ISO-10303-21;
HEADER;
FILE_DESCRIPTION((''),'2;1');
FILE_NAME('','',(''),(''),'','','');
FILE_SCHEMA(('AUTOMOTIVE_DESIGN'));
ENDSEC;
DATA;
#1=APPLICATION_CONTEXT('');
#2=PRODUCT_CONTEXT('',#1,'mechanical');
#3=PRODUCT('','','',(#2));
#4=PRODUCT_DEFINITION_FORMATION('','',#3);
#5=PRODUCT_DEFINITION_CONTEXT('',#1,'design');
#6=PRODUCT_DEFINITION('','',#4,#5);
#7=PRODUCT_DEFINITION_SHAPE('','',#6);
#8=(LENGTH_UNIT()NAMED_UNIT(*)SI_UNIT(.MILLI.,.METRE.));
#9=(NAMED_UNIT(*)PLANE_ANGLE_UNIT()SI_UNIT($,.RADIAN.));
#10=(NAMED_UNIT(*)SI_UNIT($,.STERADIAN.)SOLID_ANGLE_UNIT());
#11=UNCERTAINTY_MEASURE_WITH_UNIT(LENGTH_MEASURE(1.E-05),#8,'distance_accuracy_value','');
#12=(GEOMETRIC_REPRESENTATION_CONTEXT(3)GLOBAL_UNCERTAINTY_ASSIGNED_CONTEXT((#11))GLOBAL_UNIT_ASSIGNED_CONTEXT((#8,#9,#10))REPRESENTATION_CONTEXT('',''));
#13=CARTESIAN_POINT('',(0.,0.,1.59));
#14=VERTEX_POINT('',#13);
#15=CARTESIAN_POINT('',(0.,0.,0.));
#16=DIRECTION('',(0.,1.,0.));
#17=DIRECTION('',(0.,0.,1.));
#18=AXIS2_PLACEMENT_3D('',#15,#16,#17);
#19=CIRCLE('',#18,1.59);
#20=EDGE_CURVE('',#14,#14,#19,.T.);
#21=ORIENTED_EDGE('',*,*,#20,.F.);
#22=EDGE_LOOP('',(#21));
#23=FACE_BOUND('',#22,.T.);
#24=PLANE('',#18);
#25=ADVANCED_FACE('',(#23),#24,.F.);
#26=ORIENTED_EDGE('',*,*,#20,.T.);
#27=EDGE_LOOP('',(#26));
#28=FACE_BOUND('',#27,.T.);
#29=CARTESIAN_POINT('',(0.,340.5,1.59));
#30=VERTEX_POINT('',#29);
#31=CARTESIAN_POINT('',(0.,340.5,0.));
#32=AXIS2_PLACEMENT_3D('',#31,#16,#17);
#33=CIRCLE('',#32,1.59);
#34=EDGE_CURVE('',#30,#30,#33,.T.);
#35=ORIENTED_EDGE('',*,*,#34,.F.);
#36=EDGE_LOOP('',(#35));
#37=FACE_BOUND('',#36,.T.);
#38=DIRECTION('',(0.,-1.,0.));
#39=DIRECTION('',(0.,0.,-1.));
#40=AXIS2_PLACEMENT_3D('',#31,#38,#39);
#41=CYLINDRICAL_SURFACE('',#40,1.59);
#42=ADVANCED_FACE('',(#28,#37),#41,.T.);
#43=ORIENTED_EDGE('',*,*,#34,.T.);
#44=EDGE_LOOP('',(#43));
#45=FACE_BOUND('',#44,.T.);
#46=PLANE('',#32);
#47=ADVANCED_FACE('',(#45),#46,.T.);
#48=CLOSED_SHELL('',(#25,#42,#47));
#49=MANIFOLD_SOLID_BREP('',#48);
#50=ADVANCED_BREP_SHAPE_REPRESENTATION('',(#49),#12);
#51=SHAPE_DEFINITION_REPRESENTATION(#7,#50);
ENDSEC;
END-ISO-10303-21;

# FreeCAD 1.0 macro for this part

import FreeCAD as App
import Part
import Sketcher
Q = App.Units.Quantity

doc = App.newDocument("Part")
body = doc.addObject("PartDesign::Body", "Body")

# Sketch on XZ plane
sketch1 = body.newObject("Sketcher::SketchObject", "Sketch")
sketch1.AttachmentSupport = (doc.getObject("XZ_Plane"), [""])
sketch1.MapMode = "FlatFace"
sketch1.addGeometry(Part.Circle(App.Vector(0, 0, 0), App.Vector(0, 0, 1), 1.59), False)
sketch1.addConstraint([
    Sketcher.Constraint("Coincident", 0, 3, -1, 1),
    Sketcher.Constraint("Diameter", 0, Q("3.18 mm")),
])
pad1 = body.newObject("PartDesign::Pad", "Pad")
pad1.Profile = sketch1
pad1.Length = 340.5
pad1.Reversed = True

doc.recompute()
